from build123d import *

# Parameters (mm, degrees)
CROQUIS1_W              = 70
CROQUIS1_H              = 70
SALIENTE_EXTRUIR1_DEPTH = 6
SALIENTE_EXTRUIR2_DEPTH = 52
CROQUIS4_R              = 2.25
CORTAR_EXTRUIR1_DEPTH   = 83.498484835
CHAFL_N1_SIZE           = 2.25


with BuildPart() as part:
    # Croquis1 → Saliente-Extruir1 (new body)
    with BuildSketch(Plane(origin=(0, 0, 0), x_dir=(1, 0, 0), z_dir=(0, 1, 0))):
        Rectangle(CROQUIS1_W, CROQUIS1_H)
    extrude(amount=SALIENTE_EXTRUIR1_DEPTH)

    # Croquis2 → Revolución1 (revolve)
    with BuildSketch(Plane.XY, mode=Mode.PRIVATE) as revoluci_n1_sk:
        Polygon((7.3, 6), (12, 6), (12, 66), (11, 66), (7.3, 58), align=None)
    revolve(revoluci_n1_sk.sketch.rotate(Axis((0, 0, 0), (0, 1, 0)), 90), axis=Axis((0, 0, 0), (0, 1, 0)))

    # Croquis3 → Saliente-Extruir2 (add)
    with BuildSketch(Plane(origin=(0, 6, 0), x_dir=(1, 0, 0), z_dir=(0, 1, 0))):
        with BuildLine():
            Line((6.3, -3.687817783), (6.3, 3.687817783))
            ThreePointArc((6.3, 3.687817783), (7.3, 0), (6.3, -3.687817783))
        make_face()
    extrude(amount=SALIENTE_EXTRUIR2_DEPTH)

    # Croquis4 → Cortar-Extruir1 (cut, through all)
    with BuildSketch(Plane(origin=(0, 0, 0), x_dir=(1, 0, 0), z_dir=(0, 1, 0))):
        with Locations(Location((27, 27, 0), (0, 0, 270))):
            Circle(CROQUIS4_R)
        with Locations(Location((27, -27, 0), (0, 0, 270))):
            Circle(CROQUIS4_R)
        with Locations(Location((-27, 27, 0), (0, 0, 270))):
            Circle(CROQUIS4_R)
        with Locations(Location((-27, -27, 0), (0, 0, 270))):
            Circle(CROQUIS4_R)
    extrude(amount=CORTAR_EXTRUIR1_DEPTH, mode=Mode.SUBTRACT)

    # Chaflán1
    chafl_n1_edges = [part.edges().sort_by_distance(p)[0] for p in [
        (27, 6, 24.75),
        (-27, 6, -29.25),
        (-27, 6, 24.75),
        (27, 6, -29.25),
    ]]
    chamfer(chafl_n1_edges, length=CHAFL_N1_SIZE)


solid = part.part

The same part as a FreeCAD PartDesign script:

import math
import FreeCAD as App
import Part
import Sketcher
Q = App.Units.Quantity


def edges_at(feature, points):
    """Names of the edges that pass closest to the given points."""
    edges = feature.Shape.Edges
    near = lambda p: min(range(len(edges)), key=lambda i: edges[i].distToShape(Part.Vertex(*p))[0])
    return sorted({f"Edge{near(p) + 1}" for p in points})

doc = App.newDocument("Part")
body = doc.addObject("PartDesign::Body", "Body")

sketch1 = body.newObject("Sketcher::SketchObject", "Sketch")
sketch1.AttachmentSupport = (doc.getObject("XZ_Plane"), [""])
sketch1.MapMode = "FlatFace"
sketch1.addGeometry(Part.LineSegment(App.Vector(-35, -35, 0), App.Vector(-35, 35, 0)), False)
sketch1.addGeometry(Part.LineSegment(App.Vector(-35, 35, 0), App.Vector(35, 35, 0)), False)
sketch1.addGeometry(Part.LineSegment(App.Vector(35, 35, 0), App.Vector(35, -35, 0)), False)
sketch1.addGeometry(Part.LineSegment(App.Vector(35, -35, 0), App.Vector(-35, -35, 0)), False)
sketch1.addConstraint(Sketcher.Constraint("Coincident", 0, 2, 1, 1))
sketch1.addConstraint(Sketcher.Constraint("Coincident", 1, 2, 2, 1))
sketch1.addConstraint(Sketcher.Constraint("Coincident", 2, 2, 3, 1))
sketch1.addConstraint(Sketcher.Constraint("Coincident", 3, 2, 0, 1))
sketch1.addConstraint(Sketcher.Constraint("Vertical", 0))
sketch1.addConstraint(Sketcher.Constraint("Horizontal", 1))
sketch1.addConstraint(Sketcher.Constraint("Vertical", 2))
sketch1.addConstraint(Sketcher.Constraint("Horizontal", 3))
sketch1.addConstraint(Sketcher.Constraint("Symmetric", 0, 2, 2, 2, -1, 1))
sketch1.addConstraint(Sketcher.Constraint("Equal", 3, 0))
sketch1.addConstraint(Sketcher.Constraint("DistanceX", 1, 1, 1, 2, Q("70 mm")))
pad1 = body.newObject("PartDesign::Pad", "Pad")
pad1.Profile = sketch1
pad1.Length = 6
pad1.Reversed = True

sketch2 = body.newObject("Sketcher::SketchObject", "Sketch001")
sketch2.AttachmentSupport = (doc.getObject("XY_Plane"), [""])
sketch2.MapMode = "FlatFace"
sketch2.addGeometry(Part.LineSegment(App.Vector(7.3, 6, 0), App.Vector(12, 6, 0)), False)
sketch2.addGeometry(Part.LineSegment(App.Vector(12, 6, 0), App.Vector(12, 66, 0)), False)
sketch2.addGeometry(Part.LineSegment(App.Vector(12, 66, 0), App.Vector(11, 66, 0)), False)
sketch2.addGeometry(Part.LineSegment(App.Vector(11, 66, 0), App.Vector(7.3, 58, 0)), False)
sketch2.addGeometry(Part.LineSegment(App.Vector(7.3, 58, 0), App.Vector(7.3, 6, 0)), False)
sketch2.addConstraint(Sketcher.Constraint("Coincident", 0, 2, 1, 1))
sketch2.addConstraint(Sketcher.Constraint("Coincident", 1, 2, 2, 1))
sketch2.addConstraint(Sketcher.Constraint("Coincident", 2, 2, 3, 1))
sketch2.addConstraint(Sketcher.Constraint("Coincident", 3, 2, 4, 1))
sketch2.addConstraint(Sketcher.Constraint("Coincident", 4, 2, 0, 1))
sketch2.addConstraint(Sketcher.Constraint("Horizontal", 0))
sketch2.addConstraint(Sketcher.Constraint("Vertical", 1))
sketch2.addConstraint(Sketcher.Constraint("Horizontal", 2))
sketch2.addConstraint(Sketcher.Constraint("Vertical", 4))
sketch2.addConstraint(Sketcher.Constraint("DistanceX", 2, 2, 2, 1, Q("1 mm")))
sketch2.addConstraint(Sketcher.Constraint("DistanceY", 1, 1, 1, 2, Q("60 mm")))
sketch2.addConstraint(Sketcher.Constraint("DistanceY", 4, 2, 4, 1, Q("52 mm")))
sketch2.addConstraint(Sketcher.Constraint("DistanceX", 0, 1, 0, 2, Q("4.7 mm")))
sketch2.addConstraint(Sketcher.Constraint("DistanceX", -1, 1, 0, 2, Q("12 mm")))
sketch2.addConstraint(Sketcher.Constraint("DistanceY", -1, 1, 0, 2, Q("6 mm")))
revolution = body.newObject("PartDesign::Revolution", "Revolution")
revolution.Profile = sketch2
revolution.ReferenceAxis = (sketch2, ["V_Axis"])
revolution.Angle = 360

sketch3 = body.newObject("Sketcher::SketchObject", "Sketch002")
sketch3.AttachmentSupport = (doc.getObject("XZ_Plane"), [""])
sketch3.MapMode = "FlatFace"
sketch3.AttachmentOffset = App.Placement(App.Vector(0, 0, -6), App.Rotation())
sketch3.addGeometry(Part.LineSegment(App.Vector(6.3, -3.687818, 0), App.Vector(6.3, 3.687818, 0)), False)
sketch3.addGeometry(Part.ArcOfCircle(Part.Circle(App.Vector(0, 0, 0), App.Vector(0, 0, 1), 7.3), math.radians(-30.343336), math.radians(30.343336)), False)
sketch3.addConstraint(Sketcher.Constraint("Coincident", 0, 1, 1, 1))
sketch3.addConstraint(Sketcher.Constraint("Coincident", 1, 2, 0, 2))
sketch3.addConstraint(Sketcher.Constraint("Vertical", 0))
sketch3.addConstraint(Sketcher.Constraint("Coincident", 1, 3, -1, 1))
sketch3.addConstraint(Sketcher.Constraint("Radius", 1, Q("7.3 mm")))
sketch3.addConstraint(Sketcher.Constraint("DistanceX", -1, 1, 0, 1, Q("6.3 mm")))
pad2 = body.newObject("PartDesign::Pad", "Pad001")
pad2.Profile = sketch3
pad2.Length = 52
pad2.Reversed = True

sketch4 = body.newObject("Sketcher::SketchObject", "Sketch003")
sketch4.AttachmentSupport = (doc.getObject("XZ_Plane"), [""])
sketch4.MapMode = "FlatFace"
sketch4.addGeometry(Part.Circle(App.Vector(27, -27, 0), App.Vector(0, 0, 1), 2.25), False)
sketch4.addGeometry(Part.Circle(App.Vector(27, 27, 0), App.Vector(0, 0, 1), 2.25), False)
sketch4.addGeometry(Part.Circle(App.Vector(-27, -27, 0), App.Vector(0, 0, 1), 2.25), False)
sketch4.addGeometry(Part.Circle(App.Vector(-27, 27, 0), App.Vector(0, 0, 1), 2.25), False)
sketch4.addConstraint(Sketcher.Constraint("Equal", 0, 1))
sketch4.addConstraint(Sketcher.Constraint("Equal", 1, 2))
sketch4.addConstraint(Sketcher.Constraint("Equal", 2, 3))
sketch4.addConstraint(Sketcher.Constraint("Symmetric", 1, 3, 2, 3, -1, 1))
sketch4.addConstraint(Sketcher.Constraint("Symmetric", 0, 3, 3, 3, -1, 1))
sketch4.addConstraint(Sketcher.Constraint("Symmetric", 0, 3, 2, 3, -2))
sketch4.addConstraint(Sketcher.Constraint("Diameter", 0, Q("4.5 mm")))
sketch4.addConstraint(Sketcher.Constraint("DistanceX", -1, 1, 0, 3, Q("27 mm")))
sketch4.addConstraint(Sketcher.Constraint("DistanceY", 0, 3, -1, 1, Q("27 mm")))
pocket1 = body.newObject("PartDesign::Pocket", "Pocket")
pocket1.Profile = sketch4
pocket1.Type = "ThroughAll"
doc.recompute()

chamfer = body.newObject("PartDesign::Chamfer", "Chamfer")
chamfer.Base = (pocket1, edges_at(pocket1, [
    (27, 6, 24.75),
    (-27, 6, -29.25),
    (-27, 6, 24.75),
    (27, 6, -29.25),
]))
chamfer.Size = 2.25

doc.recompute()
